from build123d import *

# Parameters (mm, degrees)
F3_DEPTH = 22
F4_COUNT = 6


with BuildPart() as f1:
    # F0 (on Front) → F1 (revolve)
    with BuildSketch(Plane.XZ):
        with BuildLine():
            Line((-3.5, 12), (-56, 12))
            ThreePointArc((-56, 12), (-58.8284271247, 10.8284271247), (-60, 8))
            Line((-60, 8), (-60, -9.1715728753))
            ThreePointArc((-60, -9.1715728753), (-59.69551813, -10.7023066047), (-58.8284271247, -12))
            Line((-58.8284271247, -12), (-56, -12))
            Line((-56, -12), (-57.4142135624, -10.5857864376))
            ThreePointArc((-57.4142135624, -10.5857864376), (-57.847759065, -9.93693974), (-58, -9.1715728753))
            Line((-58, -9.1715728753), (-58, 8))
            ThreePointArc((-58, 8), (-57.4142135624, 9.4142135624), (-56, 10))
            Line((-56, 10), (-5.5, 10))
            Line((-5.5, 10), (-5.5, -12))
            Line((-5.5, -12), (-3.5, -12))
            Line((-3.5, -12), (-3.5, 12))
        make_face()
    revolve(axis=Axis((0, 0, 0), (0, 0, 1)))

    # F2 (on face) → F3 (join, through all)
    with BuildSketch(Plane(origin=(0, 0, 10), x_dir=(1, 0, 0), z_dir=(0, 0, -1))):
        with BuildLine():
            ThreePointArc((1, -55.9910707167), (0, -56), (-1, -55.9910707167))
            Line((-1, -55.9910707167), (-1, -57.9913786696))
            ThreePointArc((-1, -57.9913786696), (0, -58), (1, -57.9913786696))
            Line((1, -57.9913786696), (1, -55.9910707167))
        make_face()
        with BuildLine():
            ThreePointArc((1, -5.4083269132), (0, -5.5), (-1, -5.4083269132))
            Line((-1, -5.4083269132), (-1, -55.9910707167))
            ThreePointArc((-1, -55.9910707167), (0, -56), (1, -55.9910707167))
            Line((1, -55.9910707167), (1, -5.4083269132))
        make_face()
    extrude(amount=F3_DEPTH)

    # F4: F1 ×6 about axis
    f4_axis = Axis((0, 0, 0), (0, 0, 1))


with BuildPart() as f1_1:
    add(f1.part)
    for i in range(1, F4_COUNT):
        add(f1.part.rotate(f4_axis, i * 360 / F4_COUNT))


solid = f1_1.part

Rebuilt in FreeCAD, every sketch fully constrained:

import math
import FreeCAD as App
import Part
import Sketcher
Q = App.Units.Quantity

doc = App.newDocument("Part")
body = doc.addObject("PartDesign::Body", "Body")

# Sketch on XZ plane
sketch1 = body.newObject("Sketcher::SketchObject", "Sketch")
sketch1.AttachmentSupport = (doc.getObject("XZ_Plane"), [""])
sketch1.MapMode = "FlatFace"
sketch1.addGeometry([
    Part.LineSegment(App.Vector(-3.5, 12, 0), App.Vector(-56, 12, 0)),  # 0
    Part.ArcOfCircle(Part.Circle(App.Vector(-56, 8, 0), App.Vector(0, 0, 1), 4), math.radians(90), math.radians(180)),  # 1
    Part.LineSegment(App.Vector(-60, 8, 0), App.Vector(-60, -9.2, 0)),  # 2
    Part.ArcOfCircle(Part.Circle(App.Vector(-56, -9.2, 0), App.Vector(0, 0, 1), 4), math.radians(180), math.radians(225)),  # 3
    Part.LineSegment(App.Vector(-58.8, -12, 0), App.Vector(-56, -12, 0)),  # 4
    Part.LineSegment(App.Vector(-56, -12, 0), App.Vector(-57.4, -10.6, 0)),  # 5
    Part.ArcOfCircle(Part.Circle(App.Vector(-56, -9.2, 0), App.Vector(0, 0, 1), 2), math.radians(180), math.radians(225)),  # 6
    Part.LineSegment(App.Vector(-58, -9.2, 0), App.Vector(-58, 8, 0)),  # 7
    Part.ArcOfCircle(Part.Circle(App.Vector(-56, 8, 0), App.Vector(0, 0, 1), 2), math.radians(90), math.radians(180)),  # 8
    Part.LineSegment(App.Vector(-56, 10, 0), App.Vector(-5.5, 10, 0)),  # 9
    Part.LineSegment(App.Vector(-5.5, 10, 0), App.Vector(-5.5, -12, 0)),  # 10
    Part.LineSegment(App.Vector(-5.5, -12, 0), App.Vector(-3.5, -12, 0)),  # 11
    Part.LineSegment(App.Vector(-3.5, -12, 0), App.Vector(-3.5, 12, 0)),  # 12
], False)
sketch1.addConstraint([
    Sketcher.Constraint("Tangent", 0, 2, 1, 1),
    Sketcher.Constraint("Tangent", 1, 2, 2, 1),
    Sketcher.Constraint("Tangent", 2, 2, 3, 1),
    Sketcher.Constraint("Coincident", 3, 2, 4, 1),
    Sketcher.Constraint("Coincident", 4, 2, 5, 1),
    Sketcher.Constraint("Tangent", 5, 2, 6, 2),
    Sketcher.Constraint("Tangent", 6, 1, 7, 1),
    Sketcher.Constraint("Tangent", 7, 2, 8, 2),
    Sketcher.Constraint("Tangent", 8, 1, 9, 1),
    Sketcher.Constraint("Coincident", 9, 2, 10, 1),
    Sketcher.Constraint("Coincident", 10, 2, 11, 1),
    Sketcher.Constraint("Coincident", 11, 2, 12, 1),
    Sketcher.Constraint("Coincident", 12, 2, 0, 1),
    Sketcher.Constraint("Horizontal", 0),
    Sketcher.Constraint("Vertical", 2),
    Sketcher.Constraint("Horizontal", 4),
    Sketcher.Constraint("Vertical", 7),
    Sketcher.Constraint("Horizontal", 9),
    Sketcher.Constraint("Vertical", 10),
    Sketcher.Constraint("Horizontal", 11),
    Sketcher.Constraint("Vertical", 12),
    Sketcher.Constraint("Coincident", 6, 3, 3, 3),
    Sketcher.Constraint("Coincident", 8, 3, 1, 3),
    Sketcher.Constraint("Equal", 1, 3),
    Sketcher.Constraint("Symmetric", 0, 2, 4, 2, -1),
    Sketcher.Constraint("Horizontal", 4, 2, 10, 2),
    Sketcher.Constraint("Radius", 1, 4.0),
    Sketcher.Constraint("Radius", 6, 2.0),
    Sketcher.Constraint("DistanceX", 11, 1, 11, 2, 2.0),
    Sketcher.Constraint("DistanceY", 10, 2, 10, 1, 22.0),
    Sketcher.Constraint("Angle", 5, Q("135 deg")),
    Sketcher.Constraint("DistanceX", 0, 2, 0, 1, 52.5),
    Sketcher.Constraint("DistanceX", 1, 3, -1, 1, 56.0),
])
revolution = body.newObject("PartDesign::Revolution", "Revolution")
revolution.Profile = sketch1
revolution.ReferenceAxis = (sketch1, ["V_Axis"])
revolution.Angle = 360

# Sketch on XY plane
sketch2 = body.newObject("Sketcher::SketchObject", "Sketch001")
sketch2.AttachmentSupport = (doc.getObject("XY_Plane"), [""])
sketch2.MapMode = "FlatFace"
sketch2.AttachmentOffset = App.Placement(App.Vector(0, 0, 10), App.Rotation())
sketch2.addGeometry([
    Part.ArcOfCircle(Part.Circle(App.Vector(0, 0, 0), App.Vector(0, 0, 1), 58), math.radians(89.01), math.radians(90.99)),
    Part.LineSegment(App.Vector(1, 58, 0), App.Vector(1, 5.4, 0)),
    Part.ArcOfCircle(Part.Circle(App.Vector(0, 0, 0), App.Vector(0, 0, 1), 5.5), math.radians(80), math.radians(100)),
    Part.LineSegment(App.Vector(-1, 5.4, 0), App.Vector(-1, 58, 0)),
], False)
sketch2.addConstraint([
    Sketcher.Constraint("Coincident", 0, 1, 1, 1),
    Sketcher.Constraint("Coincident", 1, 2, 2, 1),
    Sketcher.Constraint("Coincident", 2, 2, 3, 1),
    Sketcher.Constraint("Coincident", 3, 2, 0, 2),
    Sketcher.Constraint("Vertical", 1),
    Sketcher.Constraint("Vertical", 3),
    Sketcher.Constraint("Coincident", 0, 3, -1, 1),
    Sketcher.Constraint("Coincident", 2, 3, -1, 1),
    Sketcher.Constraint("Horizontal", 1, 2, 2, 2),
    Sketcher.Constraint("Radius", 0, 58.0),
    Sketcher.Constraint("Radius", 2, 5.5),
    Sketcher.Constraint("DistanceX", -1, 1, 0, 1, 1.0),
])
pad1 = body.newObject("PartDesign::Pad", "Pad")
pad1.Profile = sketch2
pad1.Length = 22
pad1.Reversed = True
body2 = doc.addObject("PartDesign::Body", "Body001")
doc.recompute()

body2.BaseFeature = body
doc.recompute()

body3 = doc.addObject("PartDesign::Body", "Body002")
body3.BaseFeature = body
body3.Placement = App.Placement(App.Vector(0, 0, 0), App.Rotation(App.Vector(0, 0, 1), 60))
boolean = body2.newObject("PartDesign::Boolean", "Boolean")
boolean.Type = "Fuse"
boolean.addObjects([body3])
doc.recompute()

body4 = doc.addObject("PartDesign::Body", "Body003")
body4.BaseFeature = body
body4.Placement = App.Placement(App.Vector(0, 0, 0), App.Rotation(App.Vector(0, 0, 1), 120))
boolean2 = body2.newObject("PartDesign::Boolean", "Boolean001")
boolean2.Type = "Fuse"
boolean2.addObjects([body4])
doc.recompute()

body5 = doc.addObject("PartDesign::Body", "Body004")
body5.BaseFeature = body
body5.Placement = App.Placement(App.Vector(0, 0, 0), App.Rotation(App.Vector(0, 0, 1), 180))
boolean3 = body2.newObject("PartDesign::Boolean", "Boolean002")
boolean3.Type = "Fuse"
boolean3.addObjects([body5])
doc.recompute()

body6 = doc.addObject("PartDesign::Body", "Body005")
body6.BaseFeature = body
body6.Placement = App.Placement(App.Vector(0, 0, 0), App.Rotation(App.Vector(0, 0, 1), 240))
boolean4 = body2.newObject("PartDesign::Boolean", "Boolean003")
boolean4.Type = "Fuse"
boolean4.addObjects([body6])
doc.recompute()

body.Placement = App.Placement(App.Vector(0, 0, 0), App.Rotation(App.Vector(0, 0, 1), 300))
boolean5 = body2.newObject("PartDesign::Boolean", "Boolean004")
boolean5.Type = "Fuse"
boolean5.addObjects([body])

doc.recompute()
